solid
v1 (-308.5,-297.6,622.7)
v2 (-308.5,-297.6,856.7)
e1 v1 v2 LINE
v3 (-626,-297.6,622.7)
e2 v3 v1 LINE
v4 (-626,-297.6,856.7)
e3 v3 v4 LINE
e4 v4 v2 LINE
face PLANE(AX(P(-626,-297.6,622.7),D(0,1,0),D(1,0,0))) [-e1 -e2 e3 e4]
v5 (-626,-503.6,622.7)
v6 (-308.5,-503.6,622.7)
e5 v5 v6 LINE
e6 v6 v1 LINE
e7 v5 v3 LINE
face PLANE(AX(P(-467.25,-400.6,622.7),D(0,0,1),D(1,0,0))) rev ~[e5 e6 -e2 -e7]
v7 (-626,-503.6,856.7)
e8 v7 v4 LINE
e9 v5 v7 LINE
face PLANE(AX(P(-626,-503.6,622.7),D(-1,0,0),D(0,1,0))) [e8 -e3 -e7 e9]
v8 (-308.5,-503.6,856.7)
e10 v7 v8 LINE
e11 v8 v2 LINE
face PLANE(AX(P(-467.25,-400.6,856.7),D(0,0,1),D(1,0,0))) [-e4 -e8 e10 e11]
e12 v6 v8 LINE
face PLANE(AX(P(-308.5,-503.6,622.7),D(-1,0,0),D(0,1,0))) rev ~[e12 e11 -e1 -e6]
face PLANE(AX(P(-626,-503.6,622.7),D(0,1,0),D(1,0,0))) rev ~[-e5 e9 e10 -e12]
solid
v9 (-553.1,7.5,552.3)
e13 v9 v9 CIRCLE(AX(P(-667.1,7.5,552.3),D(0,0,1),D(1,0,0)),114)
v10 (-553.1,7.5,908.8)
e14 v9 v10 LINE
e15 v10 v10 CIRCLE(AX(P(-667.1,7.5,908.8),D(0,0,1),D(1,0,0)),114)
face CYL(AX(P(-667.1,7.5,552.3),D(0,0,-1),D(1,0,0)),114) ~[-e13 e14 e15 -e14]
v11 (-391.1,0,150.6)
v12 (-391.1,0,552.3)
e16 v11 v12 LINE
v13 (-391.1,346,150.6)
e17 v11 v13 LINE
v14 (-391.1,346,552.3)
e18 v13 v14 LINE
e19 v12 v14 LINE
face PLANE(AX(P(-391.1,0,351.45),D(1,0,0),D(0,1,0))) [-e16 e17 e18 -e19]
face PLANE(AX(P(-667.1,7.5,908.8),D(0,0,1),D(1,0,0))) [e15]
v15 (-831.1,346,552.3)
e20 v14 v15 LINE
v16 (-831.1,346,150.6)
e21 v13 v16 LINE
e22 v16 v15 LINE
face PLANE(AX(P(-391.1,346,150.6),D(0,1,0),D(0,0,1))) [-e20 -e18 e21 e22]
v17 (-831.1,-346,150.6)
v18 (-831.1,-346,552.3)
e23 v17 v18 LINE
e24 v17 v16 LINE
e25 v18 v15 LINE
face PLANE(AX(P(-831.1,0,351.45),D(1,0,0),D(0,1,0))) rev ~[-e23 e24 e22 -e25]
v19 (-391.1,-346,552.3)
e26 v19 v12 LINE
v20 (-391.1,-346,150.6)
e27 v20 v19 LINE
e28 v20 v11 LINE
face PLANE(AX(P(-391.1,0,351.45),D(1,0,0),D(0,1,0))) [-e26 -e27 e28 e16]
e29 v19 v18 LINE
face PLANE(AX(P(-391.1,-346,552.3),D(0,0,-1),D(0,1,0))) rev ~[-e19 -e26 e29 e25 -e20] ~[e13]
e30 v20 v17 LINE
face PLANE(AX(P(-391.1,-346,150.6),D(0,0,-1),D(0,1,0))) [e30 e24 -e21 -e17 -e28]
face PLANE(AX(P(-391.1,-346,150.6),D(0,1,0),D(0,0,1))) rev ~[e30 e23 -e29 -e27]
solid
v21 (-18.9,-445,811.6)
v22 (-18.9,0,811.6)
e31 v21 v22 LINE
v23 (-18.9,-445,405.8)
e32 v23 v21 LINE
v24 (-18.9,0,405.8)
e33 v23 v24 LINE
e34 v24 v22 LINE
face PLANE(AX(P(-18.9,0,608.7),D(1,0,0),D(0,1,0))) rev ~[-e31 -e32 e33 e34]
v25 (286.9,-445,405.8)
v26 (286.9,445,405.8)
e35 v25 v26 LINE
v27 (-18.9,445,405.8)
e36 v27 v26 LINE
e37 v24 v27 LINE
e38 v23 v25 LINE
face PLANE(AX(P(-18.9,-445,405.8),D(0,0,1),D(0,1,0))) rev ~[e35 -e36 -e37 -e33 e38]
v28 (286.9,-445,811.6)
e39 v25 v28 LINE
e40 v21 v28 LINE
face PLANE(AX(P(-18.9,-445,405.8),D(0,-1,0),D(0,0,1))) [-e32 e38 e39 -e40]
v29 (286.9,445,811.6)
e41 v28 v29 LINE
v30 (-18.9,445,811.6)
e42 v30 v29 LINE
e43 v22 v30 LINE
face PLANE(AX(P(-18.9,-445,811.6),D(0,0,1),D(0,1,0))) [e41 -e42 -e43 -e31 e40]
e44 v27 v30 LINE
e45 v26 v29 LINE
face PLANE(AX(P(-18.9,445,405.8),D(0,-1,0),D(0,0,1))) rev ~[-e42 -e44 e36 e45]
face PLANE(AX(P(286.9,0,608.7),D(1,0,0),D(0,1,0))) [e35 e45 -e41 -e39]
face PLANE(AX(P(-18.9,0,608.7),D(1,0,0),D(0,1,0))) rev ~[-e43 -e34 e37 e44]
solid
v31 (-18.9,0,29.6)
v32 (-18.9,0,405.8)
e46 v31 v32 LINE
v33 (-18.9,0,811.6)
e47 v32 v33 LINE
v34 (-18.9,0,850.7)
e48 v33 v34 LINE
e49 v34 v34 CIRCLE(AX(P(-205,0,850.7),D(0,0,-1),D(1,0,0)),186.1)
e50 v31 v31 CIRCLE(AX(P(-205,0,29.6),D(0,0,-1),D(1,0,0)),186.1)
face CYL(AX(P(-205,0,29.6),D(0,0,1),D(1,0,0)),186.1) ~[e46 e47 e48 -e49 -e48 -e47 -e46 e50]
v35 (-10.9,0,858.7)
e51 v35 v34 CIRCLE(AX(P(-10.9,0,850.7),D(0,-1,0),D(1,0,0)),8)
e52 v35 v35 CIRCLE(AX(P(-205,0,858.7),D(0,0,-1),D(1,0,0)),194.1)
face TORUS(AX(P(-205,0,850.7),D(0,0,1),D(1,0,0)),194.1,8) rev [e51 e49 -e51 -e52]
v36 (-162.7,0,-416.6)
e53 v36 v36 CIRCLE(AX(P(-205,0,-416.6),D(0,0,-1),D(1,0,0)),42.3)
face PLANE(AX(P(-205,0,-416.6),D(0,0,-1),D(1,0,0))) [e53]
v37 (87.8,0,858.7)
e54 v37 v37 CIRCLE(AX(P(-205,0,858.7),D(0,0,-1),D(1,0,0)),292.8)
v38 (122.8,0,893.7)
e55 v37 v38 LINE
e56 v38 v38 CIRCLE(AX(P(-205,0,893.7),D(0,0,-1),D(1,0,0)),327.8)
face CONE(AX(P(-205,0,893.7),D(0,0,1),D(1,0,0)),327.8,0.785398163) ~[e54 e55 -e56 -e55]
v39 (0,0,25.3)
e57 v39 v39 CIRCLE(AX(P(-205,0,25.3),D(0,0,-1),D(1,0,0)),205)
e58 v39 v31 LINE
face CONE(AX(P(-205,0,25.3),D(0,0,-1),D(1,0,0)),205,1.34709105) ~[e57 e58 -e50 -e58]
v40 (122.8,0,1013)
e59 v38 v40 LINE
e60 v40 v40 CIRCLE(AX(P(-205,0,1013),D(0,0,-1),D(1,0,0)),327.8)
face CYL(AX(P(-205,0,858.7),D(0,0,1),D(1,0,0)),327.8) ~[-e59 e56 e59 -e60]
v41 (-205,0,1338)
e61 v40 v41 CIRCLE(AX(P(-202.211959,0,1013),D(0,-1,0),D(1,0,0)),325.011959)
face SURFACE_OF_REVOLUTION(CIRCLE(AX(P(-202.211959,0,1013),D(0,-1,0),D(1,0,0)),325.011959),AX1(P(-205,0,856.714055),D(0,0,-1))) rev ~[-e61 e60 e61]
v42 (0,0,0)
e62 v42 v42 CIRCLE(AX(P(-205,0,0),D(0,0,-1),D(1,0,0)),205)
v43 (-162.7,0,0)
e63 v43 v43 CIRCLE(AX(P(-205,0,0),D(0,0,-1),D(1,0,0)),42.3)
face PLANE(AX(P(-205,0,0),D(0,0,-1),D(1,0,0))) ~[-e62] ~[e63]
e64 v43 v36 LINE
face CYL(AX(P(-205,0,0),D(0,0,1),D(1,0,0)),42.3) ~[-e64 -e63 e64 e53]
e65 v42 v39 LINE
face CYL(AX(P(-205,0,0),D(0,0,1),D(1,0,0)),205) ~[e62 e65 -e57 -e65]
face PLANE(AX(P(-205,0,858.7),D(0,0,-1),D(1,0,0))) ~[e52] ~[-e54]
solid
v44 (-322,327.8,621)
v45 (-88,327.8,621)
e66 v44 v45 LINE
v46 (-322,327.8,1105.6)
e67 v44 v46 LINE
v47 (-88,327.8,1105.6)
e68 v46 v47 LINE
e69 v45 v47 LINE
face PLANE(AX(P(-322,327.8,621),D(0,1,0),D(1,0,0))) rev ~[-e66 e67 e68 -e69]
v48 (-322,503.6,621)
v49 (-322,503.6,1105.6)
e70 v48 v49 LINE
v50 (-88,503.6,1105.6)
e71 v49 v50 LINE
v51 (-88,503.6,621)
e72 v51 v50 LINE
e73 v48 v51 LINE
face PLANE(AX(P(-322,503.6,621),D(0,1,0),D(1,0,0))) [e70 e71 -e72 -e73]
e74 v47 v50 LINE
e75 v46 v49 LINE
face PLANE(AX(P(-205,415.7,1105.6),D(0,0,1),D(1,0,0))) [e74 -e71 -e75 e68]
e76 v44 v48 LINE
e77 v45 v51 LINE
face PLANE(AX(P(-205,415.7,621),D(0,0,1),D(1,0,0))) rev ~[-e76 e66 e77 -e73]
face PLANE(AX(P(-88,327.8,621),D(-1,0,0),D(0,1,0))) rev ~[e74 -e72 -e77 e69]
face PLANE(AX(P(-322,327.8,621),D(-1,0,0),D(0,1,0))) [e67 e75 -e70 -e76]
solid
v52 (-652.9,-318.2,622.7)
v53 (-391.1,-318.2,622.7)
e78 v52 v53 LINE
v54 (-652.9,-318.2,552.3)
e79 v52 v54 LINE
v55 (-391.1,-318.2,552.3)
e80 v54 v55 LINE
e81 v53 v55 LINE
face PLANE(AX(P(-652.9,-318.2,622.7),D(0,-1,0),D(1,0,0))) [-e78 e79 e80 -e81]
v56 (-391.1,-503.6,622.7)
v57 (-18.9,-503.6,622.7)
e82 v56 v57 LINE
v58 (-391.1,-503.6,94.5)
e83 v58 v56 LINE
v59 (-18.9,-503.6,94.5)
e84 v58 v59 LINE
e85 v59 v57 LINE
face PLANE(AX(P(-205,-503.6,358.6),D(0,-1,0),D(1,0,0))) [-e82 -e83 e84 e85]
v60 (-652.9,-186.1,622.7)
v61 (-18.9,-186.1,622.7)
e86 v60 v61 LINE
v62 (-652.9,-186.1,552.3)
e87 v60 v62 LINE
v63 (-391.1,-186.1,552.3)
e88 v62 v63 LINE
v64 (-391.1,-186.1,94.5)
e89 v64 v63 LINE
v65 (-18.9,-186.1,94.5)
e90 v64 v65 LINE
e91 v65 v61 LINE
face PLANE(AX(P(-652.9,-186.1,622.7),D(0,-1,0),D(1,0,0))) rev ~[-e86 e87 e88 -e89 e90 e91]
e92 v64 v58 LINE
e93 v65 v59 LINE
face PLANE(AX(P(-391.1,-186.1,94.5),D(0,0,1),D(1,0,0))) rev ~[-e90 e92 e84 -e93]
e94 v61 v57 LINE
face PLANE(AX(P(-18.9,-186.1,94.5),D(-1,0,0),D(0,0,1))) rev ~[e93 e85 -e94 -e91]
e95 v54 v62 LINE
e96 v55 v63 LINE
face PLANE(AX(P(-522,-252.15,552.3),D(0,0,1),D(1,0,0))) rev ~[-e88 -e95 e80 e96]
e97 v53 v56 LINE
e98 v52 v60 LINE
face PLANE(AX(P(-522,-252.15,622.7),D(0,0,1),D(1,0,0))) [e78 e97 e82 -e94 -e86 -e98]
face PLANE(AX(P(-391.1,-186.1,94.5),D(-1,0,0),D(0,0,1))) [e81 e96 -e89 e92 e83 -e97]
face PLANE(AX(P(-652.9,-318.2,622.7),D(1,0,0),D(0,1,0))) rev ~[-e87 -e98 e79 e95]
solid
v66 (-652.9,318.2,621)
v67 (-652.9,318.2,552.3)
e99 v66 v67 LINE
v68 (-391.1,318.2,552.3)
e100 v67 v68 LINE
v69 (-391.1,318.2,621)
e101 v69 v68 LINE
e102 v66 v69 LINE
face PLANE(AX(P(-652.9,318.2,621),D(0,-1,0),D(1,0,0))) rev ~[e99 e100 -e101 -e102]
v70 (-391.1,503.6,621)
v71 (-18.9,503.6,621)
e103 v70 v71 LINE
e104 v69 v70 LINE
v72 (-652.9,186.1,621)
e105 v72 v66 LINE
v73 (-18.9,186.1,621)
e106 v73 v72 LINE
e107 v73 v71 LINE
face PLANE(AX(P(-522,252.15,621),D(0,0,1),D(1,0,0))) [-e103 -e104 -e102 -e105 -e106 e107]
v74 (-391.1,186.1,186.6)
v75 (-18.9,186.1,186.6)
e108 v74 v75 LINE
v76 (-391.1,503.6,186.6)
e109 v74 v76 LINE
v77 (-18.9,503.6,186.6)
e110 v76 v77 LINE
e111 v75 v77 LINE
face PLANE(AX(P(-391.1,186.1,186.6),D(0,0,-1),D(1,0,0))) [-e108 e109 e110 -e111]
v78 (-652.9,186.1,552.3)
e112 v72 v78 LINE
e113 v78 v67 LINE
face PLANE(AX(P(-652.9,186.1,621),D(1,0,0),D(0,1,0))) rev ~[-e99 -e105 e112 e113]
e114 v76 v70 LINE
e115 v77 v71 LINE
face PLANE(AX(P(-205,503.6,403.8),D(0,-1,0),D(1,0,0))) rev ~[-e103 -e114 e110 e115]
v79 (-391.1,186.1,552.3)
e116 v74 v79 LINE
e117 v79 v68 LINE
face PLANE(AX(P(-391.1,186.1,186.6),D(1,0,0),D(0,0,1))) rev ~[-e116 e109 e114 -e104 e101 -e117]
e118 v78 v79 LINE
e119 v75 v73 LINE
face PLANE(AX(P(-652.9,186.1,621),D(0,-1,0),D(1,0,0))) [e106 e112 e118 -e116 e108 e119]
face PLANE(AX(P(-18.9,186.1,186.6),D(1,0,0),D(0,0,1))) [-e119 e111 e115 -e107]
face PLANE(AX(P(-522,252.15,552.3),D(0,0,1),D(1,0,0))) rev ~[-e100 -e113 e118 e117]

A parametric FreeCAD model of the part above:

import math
import FreeCAD as App
import Part
import Sketcher

V = App.Vector
Q = App.Units.Quantity


def edges_at(feature, points):
    """Names of the edges that pass closest to the given points."""
    edges = feature.Shape.Edges
    near = lambda p: min(range(len(edges)), key=lambda i: edges[i].distToShape(Part.Vertex(*p))[0])
    return sorted({f"Edge{near(p) + 1}" for p in points})


def add_polygon(sketch, points):
    """Adds a closed chain of lines whose ends are joined by coincident constraints."""
    first, n = sketch.GeometryCount, len(points)
    for a, b in zip(points, points[1:] + points[:1]):
        sketch.addGeometry(Part.LineSegment(App.Vector(*a, 0), App.Vector(*b, 0)), False)
    for i in range(n):
        sketch.addConstraint(Sketcher.Constraint("Coincident", first + i, 2, first + (i + 1) % n, 1))

doc = App.newDocument("Part")
body = doc.addObject("PartDesign::Body", "Body")
body.AllowCompound = True

sketch1 = body.newObject("Sketcher::SketchObject", "Sketch")
sketch1.AttachmentSupport = (doc.getObject("XZ_Plane"), [""])
sketch1.MapMode = "FlatFace"
sketch1.addGeometry([
    Part.LineSegment(V(-205, 0, 0), V(0, 0, 0)),
    Part.LineSegment(V(0, 0, 0), V(0, 25, 0)),
    Part.LineSegment(V(0, 25, 0), V(-19, 30, 0)),
    Part.LineSegment(V(-19, 30, 0), V(-19, 859, 0)),
    Part.LineSegment(V(-19, 859, 0), V(123, 859, 0)),
    Part.LineSegment(V(123, 859, 0), V(123, 1013, 0)),
    Part.ArcOfCircle(Part.Circle(V(-202, 1013, 0), V(0, 0, 1), 325), math.radians(0), math.radians(90)),
    Part.LineSegment(V(-205, 1338, 0), V(-205, 0, 0)),
], False)
sketch1.addGeometry(Part.LineSegment(V(-205, 1338, 0), V(-205, 0, 0)), True)
sketch1.addConstraint([
    Sketcher.Constraint("Coincident", 0, 2, 1, 1),
    Sketcher.Constraint("Coincident", 1, 2, 2, 1),
    Sketcher.Constraint("Coincident", 2, 2, 3, 1),
    Sketcher.Constraint("Coincident", 3, 2, 4, 1),
    Sketcher.Constraint("Coincident", 4, 2, 5, 1),
    Sketcher.Constraint("Tangent", 5, 2, 6, 1),
    Sketcher.Constraint("Coincident", 6, 2, 7, 1),
    Sketcher.Constraint("Coincident", 7, 2, 0, 1),
    Sketcher.Constraint("Horizontal", 0),
    Sketcher.Constraint("Vertical", 1),
    Sketcher.Constraint("Vertical", 3),
    Sketcher.Constraint("Horizontal", 4),
    Sketcher.Constraint("Vertical", 5),
    Sketcher.Constraint("Vertical", 7),
    Sketcher.Constraint("Vertical", 8),
    Sketcher.Constraint("Coincident", 0, 2, -1, 1),
    Sketcher.Constraint("Coincident", 8, 1, 6, 2),
    Sketcher.Constraint("PointOnObject", 8, 2, -1),
    Sketcher.Constraint("DistanceX", 0, 1, 0, 2, Q("205 mm")),
    Sketcher.Constraint("DistanceY", 7, 2, 7, 1, Q("1338 mm")),
    Sketcher.Constraint("DistanceX", 4, 1, 4, 2, Q("141.7 mm")),
    Sketcher.Constraint("DistanceY", 1, 1, 1, 2, Q("25.3 mm")),
    Sketcher.Constraint("DistanceY", 3, 1, 3, 2, Q("829.1 mm")),
    Sketcher.Constraint("DistanceY", 5, 1, 5, 2, Q("154.3 mm")),
    Sketcher.Constraint("DistanceY", -1, 1, 6, 3, Q("1013 mm")),
    Sketcher.Constraint("DistanceX", 2, 2, -1, 1, Q("18.9 mm")),
])
revolution = body.newObject("PartDesign::Revolution", "Revolution")
revolution.Profile = sketch1
revolution.ReferenceAxis = (sketch1, ["Axis0"])
revolution.Angle = 360
doc.recompute()

chamfer = body.newObject("PartDesign::Chamfer", "Chamfer")
chamfer.Base = (revolution, edges_at(revolution, [(-532.8, 0, 858.7)]))
chamfer.Size = 35
doc.recompute()

fillet = body.newObject("PartDesign::Fillet", "Fillet")
fillet.Base = (chamfer, edges_at(chamfer, [(-391.1, 0, 858.7)]))
fillet.Radius = 8

sketch2 = body.newObject("Sketcher::SketchObject", "Sketch001")
sketch2.AttachmentSupport = (doc.getObject("XY_Plane"), [""])
sketch2.MapMode = "FlatFace"
sketch2.addGeometry(Part.Circle(V(-205, 0, 0), V(0, 0, 1), 42), False)
sketch2.addConstraint([
    Sketcher.Constraint("PointOnObject", 0, 3, -1),
    Sketcher.Constraint("Diameter", 0, Q("84.6 mm")),
    Sketcher.Constraint("DistanceX", 0, 3, -1, 1, Q("205 mm")),
])
pad1 = body.newObject("PartDesign::Pad", "Pad")
pad1.Profile = sketch2
pad1.Length = 416.6
pad1.Reversed = True

sketch3 = body.newObject("Sketcher::SketchObject", "Sketch002")
sketch3.AttachmentSupport = (doc.getObject("YZ_Plane"), [""])
sketch3.MapMode = "FlatFace"
sketch3.AttachmentOffset = App.Placement(V(0, 0, -18.9), App.Rotation())
add_polygon(sketch3, [(-445, 812), (-445, 406), (445, 406), (445, 812)])
sketch3.addConstraint([
    Sketcher.Constraint("Vertical", 0),
    Sketcher.Constraint("Horizontal", 1),
    Sketcher.Constraint("Vertical", 2),
    Sketcher.Constraint("Horizontal", 3),
    Sketcher.Constraint("DistanceX", 1, 1, 1, 2, Q("890 mm")),
    Sketcher.Constraint("DistanceY", 0, 2, 0, 1, Q("405.8 mm")),
    Sketcher.Constraint("DistanceX", 0, 2, -1, 1, Q("445 mm")),
    Sketcher.Constraint("DistanceY", -1, 1, 0, 2, Q("405.8 mm")),
])
pad2 = body.newObject("PartDesign::Pad", "Pad001")
pad2.Profile = sketch3
pad2.Length = 305.8

sketch4 = body.newObject("Sketcher::SketchObject", "Sketch003")
sketch4.AttachmentSupport = (doc.getObject("YZ_Plane"), [""])
sketch4.MapMode = "FlatFace"
sketch4.AttachmentOffset = App.Placement(V(0, 0, -391.1), App.Rotation())
add_polygon(sketch4, [(-346, 552), (-346, 151), (346, 151), (346, 552)])
sketch4.addConstraint([
    Sketcher.Constraint("Vertical", 0),
    Sketcher.Constraint("Horizontal", 1),
    Sketcher.Constraint("Vertical", 2),
    Sketcher.Constraint("Horizontal", 3),
    Sketcher.Constraint("DistanceX", 1, 1, 1, 2, Q("692 mm")),
    Sketcher.Constraint("DistanceY", 0, 2, 0, 1, Q("401.7 mm")),
    Sketcher.Constraint("DistanceX", 0, 2, -1, 1, Q("346 mm")),
    Sketcher.Constraint("DistanceY", -1, 1, 0, 2, Q("150.6 mm")),
])
pad3 = body.newObject("PartDesign::Pad", "Pad002")
pad3.Profile = sketch4
pad3.Length = 440
pad3.Reversed = True

sketch5 = body.newObject("Sketcher::SketchObject", "Sketch004")
sketch5.AttachmentSupport = (doc.getObject("XY_Plane"), [""])
sketch5.MapMode = "FlatFace"
sketch5.AttachmentOffset = App.Placement(V(0, 0, 552.3), App.Rotation())
sketch5.addGeometry(Part.Circle(V(-667, 8, 0), V(0, 0, 1), 114), False)
sketch5.addConstraint([
    Sketcher.Constraint("Diameter", 0, Q("228 mm")),
    Sketcher.Constraint("DistanceX", 0, 3, -1, 1, Q("667.1 mm")),
    Sketcher.Constraint("DistanceY", -1, 1, 0, 3, Q("7.5 mm")),
])
pad4 = body.newObject("PartDesign::Pad", "Pad003")
pad4.Profile = sketch5
pad4.Length = 356.5
body2 = doc.addObject("PartDesign::Body", "Body001")

sketch6 = body2.newObject("Sketcher::SketchObject", "Sketch005")
sketch6.AttachmentSupport = (doc.getObject("XZ_Plane001"), [""])
sketch6.MapMode = "FlatFace"
sketch6.AttachmentOffset = App.Placement(V(0, 0, 186.1), App.Rotation())
add_polygon(sketch6, [(-391, 623), (-391, 94), (-19, 94), (-19, 623)])
sketch6.addConstraint([
    Sketcher.Constraint("Vertical", 0),
    Sketcher.Constraint("Horizontal", 1),
    Sketcher.Constraint("Vertical", 2),
    Sketcher.Constraint("Horizontal", 3),
    Sketcher.Constraint("DistanceX", 1, 1, 1, 2, Q("372.2 mm")),
    Sketcher.Constraint("DistanceY", 0, 2, 0, 1, Q("528.2 mm")),
    Sketcher.Constraint("DistanceX", 0, 2, -1, 1, Q("391.1 mm")),
    Sketcher.Constraint("DistanceY", -1, 1, 0, 2, Q("94.5 mm")),
])
pad5 = body2.newObject("PartDesign::Pad", "Pad004")
pad5.Profile = sketch6
pad5.Length = 317.5

sketch7 = body2.newObject("Sketcher::SketchObject", "Sketch006")
sketch7.AttachmentSupport = (doc.getObject("XY_Plane001"), [""])
sketch7.MapMode = "FlatFace"
sketch7.AttachmentOffset = App.Placement(V(0, 0, 622.7), App.Rotation())
add_polygon(sketch7, [(-653, -186), (-653, -318), (-391, -318), (-391, -186)])
sketch7.addConstraint([
    Sketcher.Constraint("Vertical", 0),
    Sketcher.Constraint("Horizontal", 1),
    Sketcher.Constraint("Vertical", 2),
    Sketcher.Constraint("Horizontal", 3),
    Sketcher.Constraint("DistanceX", 1, 1, 1, 2, Q("261.8 mm")),
    Sketcher.Constraint("DistanceY", 0, 2, 0, 1, Q("132.1 mm")),
    Sketcher.Constraint("DistanceX", 0, 2, -1, 1, Q("652.9 mm")),
    Sketcher.Constraint("DistanceY", 0, 2, -1, 1, Q("318.2 mm")),
])
pad6 = body2.newObject("PartDesign::Pad", "Pad005")
pad6.Profile = sketch7
pad6.Length = 70.4
pad6.Reversed = True
body3 = doc.addObject("PartDesign::Body", "Body002")

sketch8 = body3.newObject("Sketcher::SketchObject", "Sketch007")
sketch8.AttachmentSupport = (doc.getObject("XZ_Plane002"), [""])
sketch8.MapMode = "FlatFace"
sketch8.AttachmentOffset = App.Placement(V(0, 0, -186.1), App.Rotation())
add_polygon(sketch8, [(-391, 621), (-391, 187), (-19, 187), (-19, 621)])
sketch8.addConstraint([
    Sketcher.Constraint("Vertical", 0),
    Sketcher.Constraint("Horizontal", 1),
    Sketcher.Constraint("Vertical", 2),
    Sketcher.Constraint("Horizontal", 3),
    Sketcher.Constraint("DistanceX", 1, 1, 1, 2, Q("372.2 mm")),
    Sketcher.Constraint("DistanceY", 0, 2, 0, 1, Q("434.4 mm")),
    Sketcher.Constraint("DistanceY", -1, 1, 2, 2, Q("621 mm")),
    Sketcher.Constraint("DistanceX", 0, 2, -1, 1, Q("391.1 mm")),
])
pad7 = body3.newObject("PartDesign::Pad", "Pad006")
pad7.Profile = sketch8
pad7.Length = 317.5
pad7.Reversed = True

sketch9 = body3.newObject("Sketcher::SketchObject", "Sketch008")
sketch9.AttachmentSupport = (doc.getObject("XY_Plane002"), [""])
sketch9.MapMode = "FlatFace"
sketch9.AttachmentOffset = App.Placement(V(0, 0, 621), App.Rotation())
add_polygon(sketch9, [(-653, 318), (-653, 186), (-391, 186), (-391, 318)])
sketch9.addConstraint([
    Sketcher.Constraint("Vertical", 0),
    Sketcher.Constraint("Horizontal", 1),
    Sketcher.Constraint("Vertical", 2),
    Sketcher.Constraint("Horizontal", 3),
    Sketcher.Constraint("DistanceX", 1, 1, 1, 2, Q("261.8 mm")),
    Sketcher.Constraint("DistanceY", 0, 2, 0, 1, Q("132.1 mm")),
    Sketcher.Constraint("DistanceX", 0, 2, -1, 1, Q("652.9 mm")),
    Sketcher.Constraint("DistanceY", -1, 1, 0, 2, Q("186.1 mm")),
])
pad8 = body3.newObject("PartDesign::Pad", "Pad007")
pad8.Profile = sketch9
pad8.Length = 68.7
pad8.Reversed = True
body4 = doc.addObject("PartDesign::Body", "Body003")

sketch10 = body4.newObject("Sketcher::SketchObject", "Sketch009")
sketch10.AttachmentSupport = (doc.getObject("XY_Plane003"), [""])
sketch10.MapMode = "FlatFace"
sketch10.AttachmentOffset = App.Placement(V(0, 0, 621), App.Rotation())
add_polygon(sketch10, [(-322, 504), (-322, 328), (-88, 328), (-88, 504)])
sketch10.addConstraint([
    Sketcher.Constraint("Vertical", 0),
    Sketcher.Constraint("Horizontal", 1),
    Sketcher.Constraint("Vertical", 2),
    Sketcher.Constraint("Horizontal", 3),
    Sketcher.Constraint("DistanceX", 1, 1, 1, 2, Q("234 mm")),
    Sketcher.Constraint("DistanceY", 0, 2, 0, 1, Q("175.8 mm")),
    Sketcher.Constraint("DistanceX", 0, 2, -1, 1, Q("322 mm")),
    Sketcher.Constraint("DistanceY", -1, 1, 0, 2, Q("327.8 mm")),
])
pad9 = body4.newObject("PartDesign::Pad", "Pad008")
pad9.Profile = sketch10
pad9.Length = 484.6
body5 = doc.addObject("PartDesign::Body", "Body004")

sketch11 = body5.newObject("Sketcher::SketchObject", "Sketch010")
sketch11.AttachmentSupport = (doc.getObject("XY_Plane004"), [""])
sketch11.MapMode = "FlatFace"
sketch11.AttachmentOffset = App.Placement(V(0, 0, 622.7), App.Rotation())
add_polygon(sketch11, [(-626, -298), (-626, -504), (-308, -504), (-308, -298)])
sketch11.addConstraint([
    Sketcher.Constraint("Vertical", 0),
    Sketcher.Constraint("Horizontal", 1),
    Sketcher.Constraint("Vertical", 2),
    Sketcher.Constraint("Horizontal", 3),
    Sketcher.Constraint("DistanceY", 0, 2, 0, 1, Q("206 mm")),
    Sketcher.Constraint("DistanceX", 1, 1, 1, 2, Q("317.5 mm")),
    Sketcher.Constraint("DistanceX", 0, 2, -1, 1, Q("626 mm")),
    Sketcher.Constraint("DistanceY", 0, 2, -1, 1, Q("503.6 mm")),
])
pad10 = body5.newObject("PartDesign::Pad", "Pad009")
pad10.Profile = sketch11
pad10.Length = 234

doc.recompute()
